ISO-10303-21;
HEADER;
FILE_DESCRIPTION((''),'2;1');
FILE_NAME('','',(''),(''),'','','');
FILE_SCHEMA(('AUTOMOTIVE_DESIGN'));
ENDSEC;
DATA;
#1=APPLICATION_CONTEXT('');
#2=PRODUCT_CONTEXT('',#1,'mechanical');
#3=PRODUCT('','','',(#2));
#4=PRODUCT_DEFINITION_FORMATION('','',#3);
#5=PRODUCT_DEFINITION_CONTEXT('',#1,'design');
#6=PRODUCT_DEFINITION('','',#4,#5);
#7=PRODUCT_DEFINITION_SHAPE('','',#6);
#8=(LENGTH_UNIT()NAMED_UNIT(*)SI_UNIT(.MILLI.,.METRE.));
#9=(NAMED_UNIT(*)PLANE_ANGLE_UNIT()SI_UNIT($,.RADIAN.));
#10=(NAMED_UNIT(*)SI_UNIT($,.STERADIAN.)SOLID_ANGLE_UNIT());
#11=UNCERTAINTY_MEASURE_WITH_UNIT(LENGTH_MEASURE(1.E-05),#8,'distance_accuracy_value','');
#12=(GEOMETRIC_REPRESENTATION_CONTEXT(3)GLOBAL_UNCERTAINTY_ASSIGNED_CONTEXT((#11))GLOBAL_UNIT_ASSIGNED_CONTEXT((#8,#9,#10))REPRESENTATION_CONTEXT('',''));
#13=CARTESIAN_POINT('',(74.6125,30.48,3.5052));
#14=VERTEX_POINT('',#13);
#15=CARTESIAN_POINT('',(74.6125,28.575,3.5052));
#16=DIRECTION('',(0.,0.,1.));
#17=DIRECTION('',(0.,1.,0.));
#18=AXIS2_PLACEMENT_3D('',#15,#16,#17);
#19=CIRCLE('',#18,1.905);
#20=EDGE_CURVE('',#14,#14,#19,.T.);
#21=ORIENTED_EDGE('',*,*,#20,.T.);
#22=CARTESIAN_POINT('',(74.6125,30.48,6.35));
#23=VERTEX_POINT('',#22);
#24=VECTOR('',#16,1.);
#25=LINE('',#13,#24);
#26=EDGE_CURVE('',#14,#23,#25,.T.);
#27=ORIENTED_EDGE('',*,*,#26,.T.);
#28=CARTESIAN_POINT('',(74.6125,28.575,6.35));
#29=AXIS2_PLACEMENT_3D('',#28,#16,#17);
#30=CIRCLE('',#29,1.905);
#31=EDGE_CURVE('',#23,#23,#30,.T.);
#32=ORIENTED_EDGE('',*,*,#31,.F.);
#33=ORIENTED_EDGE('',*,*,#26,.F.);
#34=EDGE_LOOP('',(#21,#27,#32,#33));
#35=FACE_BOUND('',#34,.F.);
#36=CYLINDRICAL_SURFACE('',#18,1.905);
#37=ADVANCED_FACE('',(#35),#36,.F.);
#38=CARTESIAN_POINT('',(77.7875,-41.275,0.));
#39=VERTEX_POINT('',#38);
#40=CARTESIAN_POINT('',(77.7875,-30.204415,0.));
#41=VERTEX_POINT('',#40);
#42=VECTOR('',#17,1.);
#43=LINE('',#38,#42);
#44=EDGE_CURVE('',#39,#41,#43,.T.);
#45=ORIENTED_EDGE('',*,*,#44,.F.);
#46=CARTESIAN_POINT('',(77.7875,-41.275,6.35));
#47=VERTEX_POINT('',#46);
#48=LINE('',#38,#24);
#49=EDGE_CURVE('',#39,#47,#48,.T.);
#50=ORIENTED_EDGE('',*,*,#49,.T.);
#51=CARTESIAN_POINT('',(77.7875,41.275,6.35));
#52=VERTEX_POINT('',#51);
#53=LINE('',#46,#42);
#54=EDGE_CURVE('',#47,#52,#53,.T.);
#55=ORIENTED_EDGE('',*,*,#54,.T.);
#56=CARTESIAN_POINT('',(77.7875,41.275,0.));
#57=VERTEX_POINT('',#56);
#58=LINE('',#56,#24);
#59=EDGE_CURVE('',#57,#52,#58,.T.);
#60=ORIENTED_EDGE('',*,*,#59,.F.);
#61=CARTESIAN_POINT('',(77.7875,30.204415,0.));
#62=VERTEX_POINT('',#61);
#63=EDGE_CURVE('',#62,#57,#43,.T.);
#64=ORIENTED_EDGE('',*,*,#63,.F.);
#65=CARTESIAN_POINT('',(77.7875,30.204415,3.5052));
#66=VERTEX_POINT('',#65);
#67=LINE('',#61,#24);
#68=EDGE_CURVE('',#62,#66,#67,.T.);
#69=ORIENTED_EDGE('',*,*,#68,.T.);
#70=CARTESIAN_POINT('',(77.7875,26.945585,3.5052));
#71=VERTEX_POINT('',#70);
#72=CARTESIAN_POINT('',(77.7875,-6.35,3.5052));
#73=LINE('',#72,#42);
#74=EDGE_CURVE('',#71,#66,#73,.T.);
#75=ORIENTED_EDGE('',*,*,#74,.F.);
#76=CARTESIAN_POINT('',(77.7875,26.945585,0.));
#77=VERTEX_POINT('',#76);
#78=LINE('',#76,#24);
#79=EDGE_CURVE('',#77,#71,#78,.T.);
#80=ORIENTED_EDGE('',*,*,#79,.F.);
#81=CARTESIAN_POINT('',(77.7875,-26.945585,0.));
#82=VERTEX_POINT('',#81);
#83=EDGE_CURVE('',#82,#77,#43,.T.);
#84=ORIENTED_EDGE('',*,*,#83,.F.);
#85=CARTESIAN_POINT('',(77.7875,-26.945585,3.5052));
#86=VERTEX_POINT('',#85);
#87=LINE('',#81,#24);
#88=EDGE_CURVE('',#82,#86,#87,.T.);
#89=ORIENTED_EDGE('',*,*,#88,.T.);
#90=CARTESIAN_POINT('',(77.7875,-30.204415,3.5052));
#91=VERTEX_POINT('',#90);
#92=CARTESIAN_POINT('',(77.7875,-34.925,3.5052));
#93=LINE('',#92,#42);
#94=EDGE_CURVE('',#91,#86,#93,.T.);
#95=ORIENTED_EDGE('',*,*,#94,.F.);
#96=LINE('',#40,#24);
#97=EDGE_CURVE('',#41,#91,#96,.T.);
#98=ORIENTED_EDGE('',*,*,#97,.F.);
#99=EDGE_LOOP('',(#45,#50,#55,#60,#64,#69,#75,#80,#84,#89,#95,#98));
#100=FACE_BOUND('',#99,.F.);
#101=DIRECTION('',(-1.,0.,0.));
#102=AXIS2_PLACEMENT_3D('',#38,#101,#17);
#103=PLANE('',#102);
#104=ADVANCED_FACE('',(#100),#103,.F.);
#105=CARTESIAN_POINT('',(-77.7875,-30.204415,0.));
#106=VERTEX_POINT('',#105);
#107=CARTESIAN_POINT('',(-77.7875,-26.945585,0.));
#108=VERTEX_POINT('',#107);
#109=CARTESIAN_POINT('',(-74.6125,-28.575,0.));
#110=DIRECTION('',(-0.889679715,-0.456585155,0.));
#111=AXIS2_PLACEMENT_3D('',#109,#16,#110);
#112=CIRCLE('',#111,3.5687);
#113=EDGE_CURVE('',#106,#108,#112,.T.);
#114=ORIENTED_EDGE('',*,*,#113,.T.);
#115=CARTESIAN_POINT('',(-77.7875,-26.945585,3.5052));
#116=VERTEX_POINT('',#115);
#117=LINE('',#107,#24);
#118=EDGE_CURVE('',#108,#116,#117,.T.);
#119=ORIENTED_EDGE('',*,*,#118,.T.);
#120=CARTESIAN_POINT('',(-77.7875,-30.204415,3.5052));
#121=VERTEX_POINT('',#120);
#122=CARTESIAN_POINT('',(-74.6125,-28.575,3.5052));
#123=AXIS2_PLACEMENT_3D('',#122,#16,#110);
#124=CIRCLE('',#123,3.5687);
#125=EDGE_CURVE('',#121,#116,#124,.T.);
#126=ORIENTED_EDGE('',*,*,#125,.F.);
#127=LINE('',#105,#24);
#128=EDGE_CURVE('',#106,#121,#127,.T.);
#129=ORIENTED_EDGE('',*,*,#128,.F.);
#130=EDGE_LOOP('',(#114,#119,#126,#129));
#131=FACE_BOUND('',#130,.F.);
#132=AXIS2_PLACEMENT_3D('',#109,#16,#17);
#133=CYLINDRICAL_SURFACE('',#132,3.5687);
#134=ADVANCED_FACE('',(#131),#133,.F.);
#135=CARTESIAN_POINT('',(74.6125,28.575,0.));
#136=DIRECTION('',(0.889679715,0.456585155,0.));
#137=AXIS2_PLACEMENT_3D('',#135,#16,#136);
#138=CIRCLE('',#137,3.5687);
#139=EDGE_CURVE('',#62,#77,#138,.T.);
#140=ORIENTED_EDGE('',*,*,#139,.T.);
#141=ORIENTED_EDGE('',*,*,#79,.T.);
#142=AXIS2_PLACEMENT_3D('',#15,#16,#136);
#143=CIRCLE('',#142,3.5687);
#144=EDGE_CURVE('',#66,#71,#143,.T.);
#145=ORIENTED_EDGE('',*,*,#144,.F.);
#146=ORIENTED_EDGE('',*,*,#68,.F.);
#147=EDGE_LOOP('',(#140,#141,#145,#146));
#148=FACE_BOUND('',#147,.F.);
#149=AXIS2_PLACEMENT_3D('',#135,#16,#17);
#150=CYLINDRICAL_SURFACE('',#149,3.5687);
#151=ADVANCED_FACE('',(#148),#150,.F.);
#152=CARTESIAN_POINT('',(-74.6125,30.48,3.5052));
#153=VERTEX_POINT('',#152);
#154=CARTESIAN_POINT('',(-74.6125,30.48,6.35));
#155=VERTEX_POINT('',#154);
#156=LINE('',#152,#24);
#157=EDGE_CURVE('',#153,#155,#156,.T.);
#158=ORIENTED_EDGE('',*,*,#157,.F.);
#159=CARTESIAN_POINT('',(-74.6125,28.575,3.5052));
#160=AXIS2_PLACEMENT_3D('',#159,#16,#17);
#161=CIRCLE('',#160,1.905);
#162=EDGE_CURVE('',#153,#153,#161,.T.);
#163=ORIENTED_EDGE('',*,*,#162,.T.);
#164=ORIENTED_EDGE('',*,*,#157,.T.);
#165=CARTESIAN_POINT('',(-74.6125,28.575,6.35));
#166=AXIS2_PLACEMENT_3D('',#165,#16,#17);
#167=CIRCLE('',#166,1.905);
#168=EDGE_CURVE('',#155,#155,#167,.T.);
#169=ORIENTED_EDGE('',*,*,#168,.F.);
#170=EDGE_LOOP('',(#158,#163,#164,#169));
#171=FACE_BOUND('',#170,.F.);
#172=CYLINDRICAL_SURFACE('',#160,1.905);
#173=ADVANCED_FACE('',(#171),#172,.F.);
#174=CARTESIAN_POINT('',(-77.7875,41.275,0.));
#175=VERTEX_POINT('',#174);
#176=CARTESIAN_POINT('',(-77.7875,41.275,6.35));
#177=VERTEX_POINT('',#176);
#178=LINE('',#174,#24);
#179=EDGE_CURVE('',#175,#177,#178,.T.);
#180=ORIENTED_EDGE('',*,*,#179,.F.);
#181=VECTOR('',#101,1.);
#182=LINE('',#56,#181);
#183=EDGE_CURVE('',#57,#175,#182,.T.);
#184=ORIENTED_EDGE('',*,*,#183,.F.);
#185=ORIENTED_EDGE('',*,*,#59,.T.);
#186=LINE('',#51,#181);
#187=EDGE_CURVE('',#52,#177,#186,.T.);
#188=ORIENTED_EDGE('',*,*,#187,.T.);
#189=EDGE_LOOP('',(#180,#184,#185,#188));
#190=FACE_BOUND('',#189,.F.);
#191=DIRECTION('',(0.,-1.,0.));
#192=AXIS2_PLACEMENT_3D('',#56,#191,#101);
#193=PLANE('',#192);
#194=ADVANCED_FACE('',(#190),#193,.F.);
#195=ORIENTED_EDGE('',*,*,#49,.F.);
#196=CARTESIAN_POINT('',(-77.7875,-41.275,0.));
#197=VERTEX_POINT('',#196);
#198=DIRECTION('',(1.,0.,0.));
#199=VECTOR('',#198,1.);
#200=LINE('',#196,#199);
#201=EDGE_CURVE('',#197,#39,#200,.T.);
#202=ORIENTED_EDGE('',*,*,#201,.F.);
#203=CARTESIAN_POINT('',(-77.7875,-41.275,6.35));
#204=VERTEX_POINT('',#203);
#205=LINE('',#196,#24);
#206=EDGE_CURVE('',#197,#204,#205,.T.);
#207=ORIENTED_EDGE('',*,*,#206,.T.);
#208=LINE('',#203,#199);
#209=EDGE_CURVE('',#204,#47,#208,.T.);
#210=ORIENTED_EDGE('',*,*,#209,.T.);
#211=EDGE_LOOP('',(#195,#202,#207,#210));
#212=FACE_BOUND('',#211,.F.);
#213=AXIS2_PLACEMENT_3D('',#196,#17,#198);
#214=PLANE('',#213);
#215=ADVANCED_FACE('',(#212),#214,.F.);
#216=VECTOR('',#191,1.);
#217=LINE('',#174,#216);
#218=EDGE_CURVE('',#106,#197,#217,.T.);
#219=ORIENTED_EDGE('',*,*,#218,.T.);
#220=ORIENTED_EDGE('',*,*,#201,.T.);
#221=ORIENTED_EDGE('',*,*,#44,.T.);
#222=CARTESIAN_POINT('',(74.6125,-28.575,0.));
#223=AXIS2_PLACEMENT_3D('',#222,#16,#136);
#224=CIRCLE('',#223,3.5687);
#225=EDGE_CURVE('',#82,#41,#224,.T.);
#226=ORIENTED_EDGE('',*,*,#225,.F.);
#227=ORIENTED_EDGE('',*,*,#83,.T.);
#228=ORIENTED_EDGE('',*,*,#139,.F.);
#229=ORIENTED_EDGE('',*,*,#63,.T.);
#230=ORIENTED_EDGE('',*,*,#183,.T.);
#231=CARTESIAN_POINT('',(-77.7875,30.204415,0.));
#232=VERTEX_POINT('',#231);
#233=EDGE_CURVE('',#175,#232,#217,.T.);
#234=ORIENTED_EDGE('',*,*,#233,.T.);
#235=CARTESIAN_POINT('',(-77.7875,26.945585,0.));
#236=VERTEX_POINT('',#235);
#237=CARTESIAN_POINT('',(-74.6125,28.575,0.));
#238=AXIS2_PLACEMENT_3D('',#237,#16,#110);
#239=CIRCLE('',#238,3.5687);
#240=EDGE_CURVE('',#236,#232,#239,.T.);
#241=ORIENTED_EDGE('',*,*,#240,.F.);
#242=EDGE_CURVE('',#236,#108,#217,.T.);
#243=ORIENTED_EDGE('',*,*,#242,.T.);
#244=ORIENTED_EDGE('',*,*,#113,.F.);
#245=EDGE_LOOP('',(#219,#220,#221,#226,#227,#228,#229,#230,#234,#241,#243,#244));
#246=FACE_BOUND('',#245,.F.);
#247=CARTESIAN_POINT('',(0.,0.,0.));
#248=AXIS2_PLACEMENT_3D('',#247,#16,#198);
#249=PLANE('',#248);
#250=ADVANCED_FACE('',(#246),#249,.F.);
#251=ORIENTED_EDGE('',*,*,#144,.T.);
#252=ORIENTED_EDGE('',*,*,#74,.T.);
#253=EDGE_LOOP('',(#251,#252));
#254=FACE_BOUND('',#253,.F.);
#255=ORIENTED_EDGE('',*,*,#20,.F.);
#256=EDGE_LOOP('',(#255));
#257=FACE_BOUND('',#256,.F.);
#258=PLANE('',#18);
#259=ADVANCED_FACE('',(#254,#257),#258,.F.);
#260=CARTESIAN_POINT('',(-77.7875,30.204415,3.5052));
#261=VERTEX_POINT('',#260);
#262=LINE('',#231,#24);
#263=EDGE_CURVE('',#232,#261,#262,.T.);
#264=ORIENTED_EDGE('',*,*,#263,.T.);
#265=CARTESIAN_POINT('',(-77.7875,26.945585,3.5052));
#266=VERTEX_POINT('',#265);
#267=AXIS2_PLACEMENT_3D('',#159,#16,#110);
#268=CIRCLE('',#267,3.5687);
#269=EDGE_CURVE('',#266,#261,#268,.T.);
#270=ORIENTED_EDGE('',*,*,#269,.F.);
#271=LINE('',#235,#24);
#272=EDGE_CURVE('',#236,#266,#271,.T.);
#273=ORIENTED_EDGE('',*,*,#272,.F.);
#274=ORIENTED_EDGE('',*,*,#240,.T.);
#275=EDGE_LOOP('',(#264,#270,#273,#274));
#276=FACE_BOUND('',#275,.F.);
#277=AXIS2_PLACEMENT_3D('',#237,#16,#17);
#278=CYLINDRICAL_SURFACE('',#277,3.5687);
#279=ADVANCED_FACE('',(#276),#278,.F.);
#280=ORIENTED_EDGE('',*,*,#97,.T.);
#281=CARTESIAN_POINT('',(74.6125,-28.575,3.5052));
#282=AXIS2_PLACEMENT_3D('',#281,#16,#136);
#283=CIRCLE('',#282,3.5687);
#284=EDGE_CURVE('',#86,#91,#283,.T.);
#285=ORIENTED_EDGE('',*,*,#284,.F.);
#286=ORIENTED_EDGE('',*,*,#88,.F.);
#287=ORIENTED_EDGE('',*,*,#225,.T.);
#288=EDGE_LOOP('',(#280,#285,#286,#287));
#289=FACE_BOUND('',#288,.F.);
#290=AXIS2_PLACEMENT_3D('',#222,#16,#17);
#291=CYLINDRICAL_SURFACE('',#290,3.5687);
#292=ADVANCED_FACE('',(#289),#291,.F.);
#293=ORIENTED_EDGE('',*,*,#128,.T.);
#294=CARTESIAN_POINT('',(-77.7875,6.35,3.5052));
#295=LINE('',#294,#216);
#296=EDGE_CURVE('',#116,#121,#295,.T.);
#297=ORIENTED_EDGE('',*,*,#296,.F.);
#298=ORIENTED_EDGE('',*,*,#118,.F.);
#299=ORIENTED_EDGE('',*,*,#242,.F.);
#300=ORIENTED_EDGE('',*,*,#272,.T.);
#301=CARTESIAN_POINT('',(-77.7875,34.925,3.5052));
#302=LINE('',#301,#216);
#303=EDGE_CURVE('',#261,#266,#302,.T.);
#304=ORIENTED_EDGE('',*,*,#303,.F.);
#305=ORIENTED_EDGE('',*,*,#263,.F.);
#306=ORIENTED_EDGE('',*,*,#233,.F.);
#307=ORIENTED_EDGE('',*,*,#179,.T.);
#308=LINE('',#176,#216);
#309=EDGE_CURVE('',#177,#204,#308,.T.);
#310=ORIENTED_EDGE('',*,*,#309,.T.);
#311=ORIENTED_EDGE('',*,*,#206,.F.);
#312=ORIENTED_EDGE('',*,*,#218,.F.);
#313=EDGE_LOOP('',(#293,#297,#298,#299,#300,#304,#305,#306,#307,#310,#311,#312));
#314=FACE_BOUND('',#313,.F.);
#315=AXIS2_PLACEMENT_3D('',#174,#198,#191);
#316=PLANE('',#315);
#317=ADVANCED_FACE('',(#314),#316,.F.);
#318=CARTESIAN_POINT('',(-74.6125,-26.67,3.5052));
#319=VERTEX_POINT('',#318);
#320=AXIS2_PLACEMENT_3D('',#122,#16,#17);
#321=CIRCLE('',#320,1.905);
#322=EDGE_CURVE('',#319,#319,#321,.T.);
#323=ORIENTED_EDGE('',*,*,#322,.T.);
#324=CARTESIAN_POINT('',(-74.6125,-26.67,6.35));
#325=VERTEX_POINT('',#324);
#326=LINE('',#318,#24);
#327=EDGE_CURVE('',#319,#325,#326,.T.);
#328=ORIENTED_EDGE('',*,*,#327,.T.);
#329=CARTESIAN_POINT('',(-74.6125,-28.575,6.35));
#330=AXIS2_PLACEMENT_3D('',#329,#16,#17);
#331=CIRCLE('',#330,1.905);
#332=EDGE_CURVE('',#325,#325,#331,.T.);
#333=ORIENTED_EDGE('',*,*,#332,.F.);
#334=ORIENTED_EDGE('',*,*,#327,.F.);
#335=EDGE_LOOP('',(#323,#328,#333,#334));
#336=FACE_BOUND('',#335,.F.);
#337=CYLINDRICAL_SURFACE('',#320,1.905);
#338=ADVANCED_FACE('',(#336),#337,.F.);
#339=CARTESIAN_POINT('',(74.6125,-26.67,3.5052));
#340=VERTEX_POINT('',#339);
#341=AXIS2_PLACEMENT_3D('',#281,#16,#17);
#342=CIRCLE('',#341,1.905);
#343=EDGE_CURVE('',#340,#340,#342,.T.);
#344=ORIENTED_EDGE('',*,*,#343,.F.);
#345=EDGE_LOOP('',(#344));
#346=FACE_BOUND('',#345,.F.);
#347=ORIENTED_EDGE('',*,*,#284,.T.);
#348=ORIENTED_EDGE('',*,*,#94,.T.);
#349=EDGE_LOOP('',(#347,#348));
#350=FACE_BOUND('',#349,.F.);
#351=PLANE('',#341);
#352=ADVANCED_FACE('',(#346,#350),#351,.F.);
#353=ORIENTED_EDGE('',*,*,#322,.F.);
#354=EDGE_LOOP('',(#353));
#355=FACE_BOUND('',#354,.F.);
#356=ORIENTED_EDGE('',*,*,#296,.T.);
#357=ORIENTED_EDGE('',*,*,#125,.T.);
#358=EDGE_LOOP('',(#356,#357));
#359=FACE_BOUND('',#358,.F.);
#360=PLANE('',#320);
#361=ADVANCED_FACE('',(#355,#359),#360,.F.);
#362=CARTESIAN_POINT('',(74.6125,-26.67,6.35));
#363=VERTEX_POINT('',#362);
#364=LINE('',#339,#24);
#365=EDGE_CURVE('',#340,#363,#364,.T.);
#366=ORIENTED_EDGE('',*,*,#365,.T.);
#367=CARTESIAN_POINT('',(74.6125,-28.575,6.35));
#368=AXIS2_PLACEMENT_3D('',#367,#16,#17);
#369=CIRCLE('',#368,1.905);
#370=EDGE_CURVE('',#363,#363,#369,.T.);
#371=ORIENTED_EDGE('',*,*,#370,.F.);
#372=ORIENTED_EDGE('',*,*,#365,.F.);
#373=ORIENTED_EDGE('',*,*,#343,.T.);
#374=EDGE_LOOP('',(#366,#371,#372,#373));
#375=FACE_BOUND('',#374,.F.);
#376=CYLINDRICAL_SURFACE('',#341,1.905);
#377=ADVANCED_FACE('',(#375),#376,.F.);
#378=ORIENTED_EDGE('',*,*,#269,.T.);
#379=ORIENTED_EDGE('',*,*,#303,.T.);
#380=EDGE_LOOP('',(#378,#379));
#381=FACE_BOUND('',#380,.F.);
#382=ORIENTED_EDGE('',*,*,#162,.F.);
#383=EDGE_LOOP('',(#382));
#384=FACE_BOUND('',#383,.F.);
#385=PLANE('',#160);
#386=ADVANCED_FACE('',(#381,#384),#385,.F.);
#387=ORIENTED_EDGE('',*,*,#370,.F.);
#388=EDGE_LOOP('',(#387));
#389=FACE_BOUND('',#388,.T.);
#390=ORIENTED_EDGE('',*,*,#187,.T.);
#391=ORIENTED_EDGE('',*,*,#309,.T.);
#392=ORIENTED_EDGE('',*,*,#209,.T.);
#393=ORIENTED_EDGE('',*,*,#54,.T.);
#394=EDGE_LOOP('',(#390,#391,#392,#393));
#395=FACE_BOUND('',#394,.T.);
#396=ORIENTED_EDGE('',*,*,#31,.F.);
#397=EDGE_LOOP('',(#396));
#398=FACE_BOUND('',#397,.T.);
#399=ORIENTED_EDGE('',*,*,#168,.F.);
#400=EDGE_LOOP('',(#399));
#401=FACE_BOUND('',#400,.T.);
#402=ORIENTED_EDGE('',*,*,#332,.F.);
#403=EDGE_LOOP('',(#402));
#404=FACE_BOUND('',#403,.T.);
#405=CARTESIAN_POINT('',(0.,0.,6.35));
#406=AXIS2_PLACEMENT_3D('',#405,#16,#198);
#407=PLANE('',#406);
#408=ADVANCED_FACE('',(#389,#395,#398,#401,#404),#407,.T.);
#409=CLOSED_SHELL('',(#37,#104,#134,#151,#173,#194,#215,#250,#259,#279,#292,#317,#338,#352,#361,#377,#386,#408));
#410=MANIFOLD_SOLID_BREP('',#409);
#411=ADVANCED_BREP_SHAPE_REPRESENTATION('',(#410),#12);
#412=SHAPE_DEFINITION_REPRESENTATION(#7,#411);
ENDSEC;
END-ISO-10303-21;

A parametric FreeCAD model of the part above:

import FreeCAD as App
import Part
import Sketcher
from FreeCAD import Vector
Q = App.Units.Quantity


def add_polygon(sketch, points):
    """Adds a closed chain of lines whose ends are joined by coincident constraints."""
    first, n = sketch.GeometryCount, len(points)
    for a, b in zip(points, points[1:] + points[:1]):
        sketch.addGeometry(Part.LineSegment(App.Vector(*a, 0), App.Vector(*b, 0)), False)
    for i in range(n):
        sketch.addConstraint(Sketcher.Constraint("Coincident", first + i, 2, first + (i + 1) % n, 1))

doc = App.newDocument("Part")
body = doc.addObject("PartDesign::Body", "Body")

sketch1 = doc.addObject("Sketcher::SketchObject", "Sketch")
body.addObject(sketch1)
sketch1.AttachmentSupport = (doc.XY_Plane, [""])
sketch1.MapMode = "FlatFace"
add_polygon(sketch1, [(-77.7875, 41.275), (-77.7875, -41.275), (77.7875, -41.275), (77.7875, 41.275)])
sketch1.addConstraint(Sketcher.Constraint("Vertical", 0))
sketch1.addConstraint(Sketcher.Constraint("Horizontal", 1))
sketch1.addConstraint(Sketcher.Constraint("Vertical", 2))
sketch1.addConstraint(Sketcher.Constraint("Horizontal", 3))
sketch1.addConstraint(Sketcher.Constraint("Symmetric", 0, 2, 2, 2, -1, 1))
sketch1.addConstraint(Sketcher.Constraint("DistanceY", 0, 2, 0, 1, Q("3.25 in")))
sketch1.addConstraint(Sketcher.Constraint("DistanceX", 1, 1, 1, 2, Q("6.125 in")))
pad1 = doc.addObject("PartDesign::Pad", "Pad")
body.addObject(pad1)
pad1.Profile = sketch1
pad1.Length = Q("0.25 in")

sketch2 = doc.addObject("Sketcher::SketchObject", "Sketch001")
body.addObject(sketch2)
sketch2.AttachmentSupport = (doc.XY_Plane, [""])
sketch2.MapMode = "FlatFace"
sketch2.addGeometry(Part.Circle(Vector(74.6125, 28.575, 0), Vector(0, 0, 1), 1.905), False)
sketch2.addGeometry(Part.Circle(Vector(74.6125, -28.575, 0), Vector(0, 0, 1), 1.905), False)
sketch2.addGeometry(Part.Circle(Vector(-74.6125, 28.575, 0), Vector(0, 0, 1), 1.905), False)
sketch2.addGeometry(Part.Circle(Vector(-74.6125, -28.575, 0), Vector(0, 0, 1), 1.905), False)
sketch2.addConstraint(Sketcher.Constraint("Equal", 0, 1))
sketch2.addConstraint(Sketcher.Constraint("Equal", 1, 2))
sketch2.addConstraint(Sketcher.Constraint("Equal", 2, 3))
sketch2.addConstraint(Sketcher.Constraint("Symmetric", 1, 3, 2, 3, -1, 1))
sketch2.addConstraint(Sketcher.Constraint("Symmetric", 0, 3, 3, 3, -1, 1))
sketch2.addConstraint(Sketcher.Constraint("Symmetric", 0, 3, 2, 3, -2))
sketch2.addConstraint(Sketcher.Constraint("Diameter", 0, Q("0.15 in")))
sketch2.addConstraint(Sketcher.Constraint("DistanceY", 1, 3, 0, 3, Q("2.25 in")))
sketch2.addConstraint(Sketcher.Constraint("DistanceX", -1, 1, 0, 3, Q("2.9375 in")))
doc.recompute()
hole = doc.addObject("PartDesign::Hole", "Hole")
body.addObject(hole)
hole.Profile = sketch2
hole.ThreadType = "None"
hole.Diameter = Q("0.15 in")
hole.DepthType = "ThroughAll"
hole.HoleCutType = "Counterbore"
hole.HoleCutDiameter = Q("0.281 in")
hole.HoleCutDepth = Q("0.138 in")
hole.Reversed = True

doc.recompute()
